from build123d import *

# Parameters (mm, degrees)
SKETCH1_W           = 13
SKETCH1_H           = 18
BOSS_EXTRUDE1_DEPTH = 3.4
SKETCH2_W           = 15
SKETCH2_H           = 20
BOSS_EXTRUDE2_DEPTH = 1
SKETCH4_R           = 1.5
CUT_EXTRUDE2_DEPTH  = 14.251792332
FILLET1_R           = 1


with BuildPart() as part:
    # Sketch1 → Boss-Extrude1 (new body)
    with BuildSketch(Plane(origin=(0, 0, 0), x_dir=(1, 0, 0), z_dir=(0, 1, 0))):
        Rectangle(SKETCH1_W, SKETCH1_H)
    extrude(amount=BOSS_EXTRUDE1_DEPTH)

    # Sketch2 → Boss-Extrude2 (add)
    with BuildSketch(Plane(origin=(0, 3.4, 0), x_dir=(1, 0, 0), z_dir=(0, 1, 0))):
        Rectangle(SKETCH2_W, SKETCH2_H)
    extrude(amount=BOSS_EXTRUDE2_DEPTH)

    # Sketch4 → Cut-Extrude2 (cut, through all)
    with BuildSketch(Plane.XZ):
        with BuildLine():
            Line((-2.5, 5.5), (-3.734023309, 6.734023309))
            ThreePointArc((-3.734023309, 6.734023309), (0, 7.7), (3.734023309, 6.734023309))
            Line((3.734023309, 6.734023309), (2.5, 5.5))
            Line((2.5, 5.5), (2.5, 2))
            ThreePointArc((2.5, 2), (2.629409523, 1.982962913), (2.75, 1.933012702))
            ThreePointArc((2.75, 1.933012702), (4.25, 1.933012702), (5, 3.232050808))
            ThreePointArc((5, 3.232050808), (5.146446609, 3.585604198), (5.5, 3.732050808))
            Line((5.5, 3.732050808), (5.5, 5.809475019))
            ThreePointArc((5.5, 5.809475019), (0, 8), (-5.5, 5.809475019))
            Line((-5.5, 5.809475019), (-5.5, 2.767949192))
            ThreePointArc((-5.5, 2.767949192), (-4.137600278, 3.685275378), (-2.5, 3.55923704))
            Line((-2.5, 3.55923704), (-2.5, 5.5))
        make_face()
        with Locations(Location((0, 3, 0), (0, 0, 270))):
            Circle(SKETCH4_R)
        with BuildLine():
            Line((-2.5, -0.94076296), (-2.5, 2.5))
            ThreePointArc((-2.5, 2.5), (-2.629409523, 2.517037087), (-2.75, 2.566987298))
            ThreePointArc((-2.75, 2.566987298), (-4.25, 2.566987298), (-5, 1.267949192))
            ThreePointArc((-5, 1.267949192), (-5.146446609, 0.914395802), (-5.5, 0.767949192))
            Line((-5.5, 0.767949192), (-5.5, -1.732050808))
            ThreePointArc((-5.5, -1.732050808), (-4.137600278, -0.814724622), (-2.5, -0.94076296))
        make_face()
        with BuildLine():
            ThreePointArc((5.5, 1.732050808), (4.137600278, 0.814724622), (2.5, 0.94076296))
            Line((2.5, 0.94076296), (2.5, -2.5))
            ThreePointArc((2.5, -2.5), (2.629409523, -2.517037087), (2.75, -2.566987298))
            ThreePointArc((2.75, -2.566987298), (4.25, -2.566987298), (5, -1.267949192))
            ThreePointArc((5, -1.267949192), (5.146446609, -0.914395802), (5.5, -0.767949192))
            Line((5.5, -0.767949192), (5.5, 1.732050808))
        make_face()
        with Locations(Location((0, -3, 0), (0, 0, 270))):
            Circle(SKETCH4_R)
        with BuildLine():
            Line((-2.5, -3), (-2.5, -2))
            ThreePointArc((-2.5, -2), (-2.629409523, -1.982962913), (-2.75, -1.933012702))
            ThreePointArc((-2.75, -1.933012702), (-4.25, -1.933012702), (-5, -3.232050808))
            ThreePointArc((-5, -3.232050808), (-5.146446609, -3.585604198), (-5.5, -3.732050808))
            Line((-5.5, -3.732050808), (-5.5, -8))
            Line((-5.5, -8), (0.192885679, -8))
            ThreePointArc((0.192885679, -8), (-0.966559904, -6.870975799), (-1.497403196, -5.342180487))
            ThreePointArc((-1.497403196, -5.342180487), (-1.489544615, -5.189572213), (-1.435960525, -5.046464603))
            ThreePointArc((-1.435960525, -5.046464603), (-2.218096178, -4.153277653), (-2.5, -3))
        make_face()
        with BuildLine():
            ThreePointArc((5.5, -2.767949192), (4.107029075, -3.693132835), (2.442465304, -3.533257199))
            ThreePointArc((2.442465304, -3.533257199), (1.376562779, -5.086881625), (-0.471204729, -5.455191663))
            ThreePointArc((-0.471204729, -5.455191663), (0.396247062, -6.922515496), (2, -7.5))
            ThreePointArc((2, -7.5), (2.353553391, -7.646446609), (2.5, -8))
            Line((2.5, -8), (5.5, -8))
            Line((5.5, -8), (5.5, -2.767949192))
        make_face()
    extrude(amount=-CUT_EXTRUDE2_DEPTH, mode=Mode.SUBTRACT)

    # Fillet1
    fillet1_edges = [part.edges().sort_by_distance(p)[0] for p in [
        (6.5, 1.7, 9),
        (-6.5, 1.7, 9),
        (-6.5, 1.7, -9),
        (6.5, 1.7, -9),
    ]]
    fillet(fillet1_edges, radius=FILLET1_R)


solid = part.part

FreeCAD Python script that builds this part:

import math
import FreeCAD as App
import Part
import Sketcher


def edges_at(feature, points):
    """Names of the edges that pass closest to the given points."""
    edges = feature.Shape.Edges
    near = lambda p: min(range(len(edges)), key=lambda i: edges[i].distToShape(Part.Vertex(*p))[0])
    return sorted({f"Edge{near(p) + 1}" for p in points})


def add_polygon(sketch, points):
    """Adds a closed chain of lines whose ends are joined by coincident constraints."""
    first, n = sketch.GeometryCount, len(points)
    for a, b in zip(points, points[1:] + points[:1]):
        sketch.addGeometry(Part.LineSegment(App.Vector(*a, 0), App.Vector(*b, 0)), False)
    for i in range(n):
        sketch.addConstraint(Sketcher.Constraint("Coincident", first + i, 2, first + (i + 1) % n, 1))

doc = App.newDocument("Part")
body = doc.addObject("PartDesign::Body", "Body")

# Sketch on XZ plane
sketch1 = body.newObject("Sketcher::SketchObject", "Sketch")
sketch1.AttachmentSupport = (doc.getObject("XZ_Plane"), [""])
sketch1.MapMode = "FlatFace"
add_polygon(sketch1, [(-6, -9), (-6, 9), (6, 9), (6, -9)])  # lines 0-3
sketch1.addConstraint([
    Sketcher.Constraint("Vertical", 0),
    Sketcher.Constraint("Horizontal", 1),
    Sketcher.Constraint("Vertical", 2),
    Sketcher.Constraint("Horizontal", 3),
    Sketcher.Constraint("Symmetric", 0, 2, 2, 2, -1, 1),
    Sketcher.Constraint("DistanceX", 1, 1, 1, 2, 13.0),
    Sketcher.Constraint("DistanceY", 0, 1, 0, 2, 18.0),
])
pad1 = body.newObject("PartDesign::Pad", "Pad")
pad1.Profile = sketch1
pad1.Length = 3.4
pad1.Reversed = True

# Sketch on XZ plane
sketch2 = body.newObject("Sketcher::SketchObject", "Sketch001")
sketch2.AttachmentSupport = (doc.getObject("XZ_Plane"), [""])
sketch2.MapMode = "FlatFace"
sketch2.AttachmentOffset = App.Placement(App.Vector(0, 0, -3.4), App.Rotation())
add_polygon(sketch2, [(-8, -10), (-8, 10), (8, 10), (8, -10)])  # lines 0-3
sketch2.addConstraint([
    Sketcher.Constraint("Vertical", 0),
    Sketcher.Constraint("Horizontal", 1),
    Sketcher.Constraint("Vertical", 2),
    Sketcher.Constraint("Horizontal", 3),
    Sketcher.Constraint("Symmetric", 0, 2, 2, 2, -1, 1),
    Sketcher.Constraint("DistanceX", 1, 1, 1, 2, 15.0),
    Sketcher.Constraint("DistanceY", 0, 1, 0, 2, 20.0),
])
pad2 = body.newObject("PartDesign::Pad", "Pad001")
pad2.Profile = sketch2
pad2.Length = 1
pad2.Reversed = True

# Sketch on XZ plane
sketch3 = body.newObject("Sketcher::SketchObject", "Sketch002")
sketch3.AttachmentSupport = (doc.getObject("XZ_Plane"), [""])
sketch3.MapMode = "FlatFace"
sketch3.addGeometry([
    Part.LineSegment(App.Vector(-2.5, 5.5, 0), App.Vector(-3.73, 6.73, 0)),  # 0
    Part.ArcOfCircle(Part.Circle(App.Vector(0, 0, 0), App.Vector(0, 0, 1), 7.7), math.radians(61), math.radians(119)),  # 1
    Part.LineSegment(App.Vector(3.73, 6.73, 0), App.Vector(2.5, 5.5, 0)),  # 2
    Part.LineSegment(App.Vector(2.5, 5.5, 0), App.Vector(2.5, 2, 0)),  # 3
    Part.ArcOfCircle(Part.Circle(App.Vector(2.5, 1.5, 0), App.Vector(0, 0, 1), 0.5), math.radians(60), math.radians(90)),  # 4
    Part.ArcOfCircle(Part.Circle(App.Vector(3.5, 3.23, 0), App.Vector(0, 0, 1), 1.5), math.radians(-120), math.radians(0)),  # 5
    Part.ArcOfCircle(Part.Circle(App.Vector(5.5, 3.23, 0), App.Vector(0, 0, 1), 0.5), math.radians(90), math.radians(180)),  # 6
    Part.LineSegment(App.Vector(5.5, 3.73, 0), App.Vector(5.5, 5.81, 0)),  # 7
    Part.ArcOfCircle(Part.Circle(App.Vector(0, 0, 0), App.Vector(0, 0, 1), 8), math.radians(47), math.radians(133)),  # 8
    Part.LineSegment(App.Vector(-5.5, 5.81, 0), App.Vector(-5.5, 2.77, 0)),  # 9
    Part.ArcOfCircle(Part.Circle(App.Vector(-3.5, 1.27, 0), App.Vector(0, 0, 1), 2.5), math.radians(66), math.radians(143)),  # 10
    Part.LineSegment(App.Vector(-2.5, 3.56, 0), App.Vector(-2.5, 5.5, 0)),  # 11
    Part.Circle(App.Vector(0, 3, 0), App.Vector(0, 0, 1), 1.5),  # 12
    Part.LineSegment(App.Vector(-2.5, -0.94, 0), App.Vector(-2.5, 2.5, 0)),  # 13
    Part.ArcOfCircle(Part.Circle(App.Vector(-2.5, 3, 0), App.Vector(0, 0, 1), 0.5), math.radians(-120), math.radians(-90)),  # 14
    Part.ArcOfCircle(Part.Circle(App.Vector(-3.5, 1.27, 0), App.Vector(0, 0, 1), 1.5), math.radians(60), math.radians(180)),  # 15
    Part.ArcOfCircle(Part.Circle(App.Vector(-5.5, 1.27, 0), App.Vector(0, 0, 1), 0.5), math.radians(-90), math.radians(0)),  # 16
    Part.LineSegment(App.Vector(-5.5, 0.77, 0), App.Vector(-5.5, -1.73, 0)),  # 17
    Part.ArcOfCircle(Part.Circle(App.Vector(-3.5, -3.23, 0), App.Vector(0, 0, 1), 2.5), math.radians(66), math.radians(143)),  # 18
    Part.ArcOfCircle(Part.Circle(App.Vector(3.5, 3.23, 0), App.Vector(0, 0, 1), 2.5), math.radians(-114), math.radians(-37)),  # 19
    Part.LineSegment(App.Vector(2.5, 0.94, 0), App.Vector(2.5, -2.5, 0)),  # 20
    Part.ArcOfCircle(Part.Circle(App.Vector(2.5, -3, 0), App.Vector(0, 0, 1), 0.5), math.radians(60), math.radians(90)),  # 21
    Part.ArcOfCircle(Part.Circle(App.Vector(3.5, -1.27, 0), App.Vector(0, 0, 1), 1.5), math.radians(-120), math.radians(0)),  # 22
    Part.ArcOfCircle(Part.Circle(App.Vector(5.5, -1.27, 0), App.Vector(0, 0, 1), 0.5), math.radians(90), math.radians(180)),  # 23
    Part.LineSegment(App.Vector(5.5, -0.77, 0), App.Vector(5.5, 1.73, 0)),  # 24
    Part.Circle(App.Vector(0, -3, 0), App.Vector(0, 0, 1), 1.5),  # 25
    Part.LineSegment(App.Vector(-2.5, -3, 0), App.Vector(-2.5, -2, 0)),  # 26
    Part.ArcOfCircle(Part.Circle(App.Vector(-2.5, -1.5, 0), App.Vector(0, 0, 1), 0.5), math.radians(-120), math.radians(-90)),  # 27
    Part.ArcOfCircle(Part.Circle(App.Vector(-3.5, -3.23, 0), App.Vector(0, 0, 1), 1.5), math.radians(60), math.radians(180)),  # 28
    Part.ArcOfCircle(Part.Circle(App.Vector(-5.5, -3.23, 0), App.Vector(0, 0, 1), 0.5), math.radians(-90), math.radians(0)),  # 29
    Part.LineSegment(App.Vector(-5.5, -3.73, 0), App.Vector(-5.5, -8, 0)),  # 30
    Part.LineSegment(App.Vector(-5.5, -8, 0), App.Vector(0.19, -8, 0)),  # 31
    Part.ArcOfCircle(Part.Circle(App.Vector(2, -4.98, 0), App.Vector(0, 0, 1), 3.52), math.radians(-174), math.radians(-121)),  # 32
    Part.ArcOfCircle(Part.Circle(App.Vector(-1, -5.29, 0), App.Vector(0, 0, 1), 0.5), math.radians(151), math.radians(186)),  # 33
    Part.ArcOfCircle(Part.Circle(App.Vector(0, -3, 0), App.Vector(0, 0, 1), 2.5), math.radians(180), math.radians(235)),  # 34
    Part.ArcOfCircle(Part.Circle(App.Vector(3.5, -1.27, 0), App.Vector(0, 0, 1), 2.5), math.radians(-115), math.radians(-37)),  # 35
    Part.ArcOfCircle(Part.Circle(App.Vector(0, -3, 0), App.Vector(0, 0, 1), 2.5), math.radians(-101), math.radians(-12)),  # 36
    Part.ArcOfCircle(Part.Circle(App.Vector(2, -4.98, 0), App.Vector(0, 0, 1), 2.52), math.radians(-169), math.radians(-90)),  # 37
    Part.ArcOfCircle(Part.Circle(App.Vector(2, -8, 0), App.Vector(0, 0, 1), 0.5), math.radians(0), math.radians(90)),  # 38
    Part.LineSegment(App.Vector(2.5, -8, 0), App.Vector(5.5, -8, 0)),  # 39
    Part.LineSegment(App.Vector(5.5, -8, 0), App.Vector(5.5, -2.77, 0)),  # 40
], False)
sketch3.addConstraint([
    Sketcher.Constraint("Coincident", 0, 2, 1, 2),
    Sketcher.Constraint("Coincident", 1, 1, 2, 1),
    Sketcher.Constraint("Coincident", 2, 2, 3, 1),
    Sketcher.Constraint("Coincident", 3, 2, 4, 2),
    Sketcher.Constraint("Tangent", 4, 1, 5, 1),
    Sketcher.Constraint("Tangent", 5, 2, 6, 2),
    Sketcher.Constraint("Coincident", 6, 1, 7, 1),
    Sketcher.Constraint("Coincident", 7, 2, 8, 1),
    Sketcher.Constraint("Coincident", 8, 2, 9, 1),
    Sketcher.Constraint("Coincident", 9, 2, 10, 2),
    Sketcher.Constraint("Coincident", 10, 1, 11, 1),
    Sketcher.Constraint("Coincident", 11, 2, 0, 1),
    Sketcher.Constraint("Coincident", 13, 2, 14, 2),
    Sketcher.Constraint("Tangent", 14, 1, 15, 1),
    Sketcher.Constraint("Tangent", 15, 2, 16, 2),
    Sketcher.Constraint("Coincident", 16, 1, 17, 1),
    Sketcher.Constraint("Coincident", 17, 2, 18, 2),
    Sketcher.Constraint("Coincident", 18, 1, 13, 1),
    Sketcher.Constraint("Coincident", 19, 1, 20, 1),
    Sketcher.Constraint("Coincident", 20, 2, 21, 2),
    Sketcher.Constraint("Tangent", 21, 1, 22, 1),
    Sketcher.Constraint("Tangent", 22, 2, 23, 2),
    Sketcher.Constraint("Coincident", 23, 1, 24, 1),
    Sketcher.Constraint("Coincident", 24, 2, 19, 2),
    Sketcher.Constraint("Coincident", 26, 2, 27, 2),
    Sketcher.Constraint("Tangent", 27, 1, 28, 1),
    Sketcher.Constraint("Tangent", 28, 2, 29, 2),
    Sketcher.Constraint("Coincident", 29, 1, 30, 1),
    Sketcher.Constraint("Coincident", 30, 2, 31, 1),
    Sketcher.Constraint("Coincident", 31, 2, 32, 2),
    Sketcher.Constraint("Tangent", 32, 1, 33, 2),
    Sketcher.Constraint("Coincident", 33, 1, 34, 2),
    Sketcher.Constraint("Tangent", 34, 1, 26, 1),
    Sketcher.Constraint("Coincident", 35, 1, 36, 2),
    Sketcher.Constraint("Coincident", 36, 1, 37, 1),
    Sketcher.Constraint("Tangent", 37, 2, 38, 2),
    Sketcher.Constraint("Coincident", 38, 1, 39, 1),
    Sketcher.Constraint("Coincident", 39, 2, 40, 1),
    Sketcher.Constraint("Coincident", 40, 2, 35, 2),
    Sketcher.Constraint("Vertical", 3),
    Sketcher.Constraint("Vertical", 7),
    Sketcher.Constraint("Vertical", 9),
    Sketcher.Constraint("Vertical", 11),
    Sketcher.Constraint("Vertical", 13),
    Sketcher.Constraint("Vertical", 17),
    Sketcher.Constraint("Vertical", 20),
    Sketcher.Constraint("Vertical", 24),
    Sketcher.Constraint("Vertical", 26),
    Sketcher.Constraint("Vertical", 30),
    Sketcher.Constraint("Horizontal", 31),
    Sketcher.Constraint("Horizontal", 39),
    Sketcher.Constraint("Vertical", 40),
    Sketcher.Constraint("Coincident", 1, 3, -1, 1),
    Sketcher.Constraint("Coincident", 8, 3, -1, 1),
    Sketcher.Constraint("Coincident", 15, 3, 10, 3),
    Sketcher.Constraint("Coincident", 19, 3, 5, 3),
    Sketcher.Constraint("Coincident", 28, 3, 18, 3),
    Sketcher.Constraint("Coincident", 34, 3, 25, 3),
    Sketcher.Constraint("Coincident", 35, 3, 22, 3),
    Sketcher.Constraint("Coincident", 36, 3, 25, 3),
    Sketcher.Constraint("Coincident", 37, 3, 32, 3),
    Sketcher.Constraint("Equal", 4, 6),
    Sketcher.Constraint("Equal", 5, 12),
    Sketcher.Constraint("Equal", 6, 14),
    Sketcher.Constraint("Equal", 12, 15),
    Sketcher.Constraint("Equal", 14, 16),
    Sketcher.Constraint("Equal", 10, 18),
    Sketcher.Constraint("Equal", 18, 19),
    Sketcher.Constraint("Equal", 16, 21),
    Sketcher.Constraint("Equal", 15, 22),
    Sketcher.Constraint("Equal", 21, 23),
    Sketcher.Constraint("Equal", 22, 25),
    Sketcher.Constraint("Equal", 23, 27),
    Sketcher.Constraint("Equal", 25, 28),
    Sketcher.Constraint("Equal", 27, 29),
    Sketcher.Constraint("Equal", 29, 33),
    Sketcher.Constraint("Equal", 19, 34),
    Sketcher.Constraint("Equal", 34, 35),
    Sketcher.Constraint("Equal", 35, 36),
    Sketcher.Constraint("Equal", 33, 38),
    Sketcher.Constraint("Symmetric", 5, 3, 18, 3, -1, 1),
    Sketcher.Constraint("Symmetric", 14, 3, 21, 3, -1, 1),
    Sketcher.Constraint("Symmetric", 16, 3, 23, 3, -1, 1),
    Sketcher.Constraint("Symmetric", 12, 3, 25, 3, -1, 1),
    Sketcher.Constraint("Symmetric", 3, 2, 26, 2, -1, 1),
    Sketcher.Constraint("Symmetric", 6, 1, 29, 1, -1, 1),
    Sketcher.Constraint("Symmetric", 2, 2, 11, 2, -2),
    Sketcher.Constraint("Symmetric", 30, 2, 39, 2, -2),
    Sketcher.Constraint("PointOnObject", 12, 3, -2),
    Sketcher.Constraint("Perpendicular", 0, 2),
    Sketcher.Constraint("Horizontal", 5, 3, 6, 3),
    Sketcher.Constraint("Horizontal", 12, 3, 14, 3),
    Sketcher.Constraint("Horizontal", 15, 3, 16, 3),
    Sketcher.Constraint("Horizontal", 0, 2, 1, 1),
    Sketcher.Constraint("Horizontal", 7, 2, 8, 2),
    Sketcher.Constraint("Horizontal", 38, 3, 30, 2),
    Sketcher.Constraint("Vertical", 15, 3, 18, 3),
    Sketcher.Constraint("Vertical", 4, 3, 21, 3),
    Sketcher.Constraint("Vertical", 37, 3, 38, 3),
    Sketcher.Constraint("Vertical", 21, 3, 2, 2),
    Sketcher.Constraint("Vertical", 23, 3, 6, 1),
    Sketcher.Constraint("Vertical", 11, 2, 13, 2),
    Sketcher.Constraint("Vertical", 9, 2, 16, 1),
    Sketcher.Constraint("Vertical", 3, 2, 19, 1),
    Sketcher.Constraint("Vertical", 7, 2, 23, 1),
    Sketcher.Constraint("Vertical", 20, 2, 38, 1),
    Sketcher.Constraint("Diameter", 12, 3.0),
    Sketcher.Constraint("Radius", 8, 8.0),
    Sketcher.Constraint("Radius", 1, 7.7),
    Sketcher.Constraint("Radius", 4, 0.5),
    Sketcher.Constraint("Radius", 10, 2.5),
    Sketcher.Constraint("DistanceX", 39, 1, 39, 2, 3.0),
    Sketcher.Constraint("DistanceY", 26, 1, 26, 2, 1.0),
    Sketcher.Constraint("DistanceY", 3, 2, 3, 1, 3.5),
    Sketcher.Constraint("DistanceY", 17, 2, 17, 1, 2.5),
    Sketcher.Constraint("DistanceX", 33, 3, -1, 1, 1.0),
    Sketcher.Constraint("DistanceY", 38, 3, -1, 1, 8.0),
    Sketcher.Constraint("Radius", 32, 3.515662),
    Sketcher.Constraint("Radius", 37, 2.515662),
])
pocket1 = body.newObject("PartDesign::Pocket", "Pocket")
pocket1.Profile = sketch3
pocket1.Type = "ThroughAll"
doc.recompute()

fillet = body.newObject("PartDesign::Fillet", "Fillet")
fillet.Base = (pocket1, edges_at(pocket1, [
    (6.5, 1.7, 9),
    (-6.5, 1.7, 9),
    (-6.5, 1.7, -9),
    (6.5, 1.7, -9),
]))
fillet.Radius = 1

doc.recompute()
